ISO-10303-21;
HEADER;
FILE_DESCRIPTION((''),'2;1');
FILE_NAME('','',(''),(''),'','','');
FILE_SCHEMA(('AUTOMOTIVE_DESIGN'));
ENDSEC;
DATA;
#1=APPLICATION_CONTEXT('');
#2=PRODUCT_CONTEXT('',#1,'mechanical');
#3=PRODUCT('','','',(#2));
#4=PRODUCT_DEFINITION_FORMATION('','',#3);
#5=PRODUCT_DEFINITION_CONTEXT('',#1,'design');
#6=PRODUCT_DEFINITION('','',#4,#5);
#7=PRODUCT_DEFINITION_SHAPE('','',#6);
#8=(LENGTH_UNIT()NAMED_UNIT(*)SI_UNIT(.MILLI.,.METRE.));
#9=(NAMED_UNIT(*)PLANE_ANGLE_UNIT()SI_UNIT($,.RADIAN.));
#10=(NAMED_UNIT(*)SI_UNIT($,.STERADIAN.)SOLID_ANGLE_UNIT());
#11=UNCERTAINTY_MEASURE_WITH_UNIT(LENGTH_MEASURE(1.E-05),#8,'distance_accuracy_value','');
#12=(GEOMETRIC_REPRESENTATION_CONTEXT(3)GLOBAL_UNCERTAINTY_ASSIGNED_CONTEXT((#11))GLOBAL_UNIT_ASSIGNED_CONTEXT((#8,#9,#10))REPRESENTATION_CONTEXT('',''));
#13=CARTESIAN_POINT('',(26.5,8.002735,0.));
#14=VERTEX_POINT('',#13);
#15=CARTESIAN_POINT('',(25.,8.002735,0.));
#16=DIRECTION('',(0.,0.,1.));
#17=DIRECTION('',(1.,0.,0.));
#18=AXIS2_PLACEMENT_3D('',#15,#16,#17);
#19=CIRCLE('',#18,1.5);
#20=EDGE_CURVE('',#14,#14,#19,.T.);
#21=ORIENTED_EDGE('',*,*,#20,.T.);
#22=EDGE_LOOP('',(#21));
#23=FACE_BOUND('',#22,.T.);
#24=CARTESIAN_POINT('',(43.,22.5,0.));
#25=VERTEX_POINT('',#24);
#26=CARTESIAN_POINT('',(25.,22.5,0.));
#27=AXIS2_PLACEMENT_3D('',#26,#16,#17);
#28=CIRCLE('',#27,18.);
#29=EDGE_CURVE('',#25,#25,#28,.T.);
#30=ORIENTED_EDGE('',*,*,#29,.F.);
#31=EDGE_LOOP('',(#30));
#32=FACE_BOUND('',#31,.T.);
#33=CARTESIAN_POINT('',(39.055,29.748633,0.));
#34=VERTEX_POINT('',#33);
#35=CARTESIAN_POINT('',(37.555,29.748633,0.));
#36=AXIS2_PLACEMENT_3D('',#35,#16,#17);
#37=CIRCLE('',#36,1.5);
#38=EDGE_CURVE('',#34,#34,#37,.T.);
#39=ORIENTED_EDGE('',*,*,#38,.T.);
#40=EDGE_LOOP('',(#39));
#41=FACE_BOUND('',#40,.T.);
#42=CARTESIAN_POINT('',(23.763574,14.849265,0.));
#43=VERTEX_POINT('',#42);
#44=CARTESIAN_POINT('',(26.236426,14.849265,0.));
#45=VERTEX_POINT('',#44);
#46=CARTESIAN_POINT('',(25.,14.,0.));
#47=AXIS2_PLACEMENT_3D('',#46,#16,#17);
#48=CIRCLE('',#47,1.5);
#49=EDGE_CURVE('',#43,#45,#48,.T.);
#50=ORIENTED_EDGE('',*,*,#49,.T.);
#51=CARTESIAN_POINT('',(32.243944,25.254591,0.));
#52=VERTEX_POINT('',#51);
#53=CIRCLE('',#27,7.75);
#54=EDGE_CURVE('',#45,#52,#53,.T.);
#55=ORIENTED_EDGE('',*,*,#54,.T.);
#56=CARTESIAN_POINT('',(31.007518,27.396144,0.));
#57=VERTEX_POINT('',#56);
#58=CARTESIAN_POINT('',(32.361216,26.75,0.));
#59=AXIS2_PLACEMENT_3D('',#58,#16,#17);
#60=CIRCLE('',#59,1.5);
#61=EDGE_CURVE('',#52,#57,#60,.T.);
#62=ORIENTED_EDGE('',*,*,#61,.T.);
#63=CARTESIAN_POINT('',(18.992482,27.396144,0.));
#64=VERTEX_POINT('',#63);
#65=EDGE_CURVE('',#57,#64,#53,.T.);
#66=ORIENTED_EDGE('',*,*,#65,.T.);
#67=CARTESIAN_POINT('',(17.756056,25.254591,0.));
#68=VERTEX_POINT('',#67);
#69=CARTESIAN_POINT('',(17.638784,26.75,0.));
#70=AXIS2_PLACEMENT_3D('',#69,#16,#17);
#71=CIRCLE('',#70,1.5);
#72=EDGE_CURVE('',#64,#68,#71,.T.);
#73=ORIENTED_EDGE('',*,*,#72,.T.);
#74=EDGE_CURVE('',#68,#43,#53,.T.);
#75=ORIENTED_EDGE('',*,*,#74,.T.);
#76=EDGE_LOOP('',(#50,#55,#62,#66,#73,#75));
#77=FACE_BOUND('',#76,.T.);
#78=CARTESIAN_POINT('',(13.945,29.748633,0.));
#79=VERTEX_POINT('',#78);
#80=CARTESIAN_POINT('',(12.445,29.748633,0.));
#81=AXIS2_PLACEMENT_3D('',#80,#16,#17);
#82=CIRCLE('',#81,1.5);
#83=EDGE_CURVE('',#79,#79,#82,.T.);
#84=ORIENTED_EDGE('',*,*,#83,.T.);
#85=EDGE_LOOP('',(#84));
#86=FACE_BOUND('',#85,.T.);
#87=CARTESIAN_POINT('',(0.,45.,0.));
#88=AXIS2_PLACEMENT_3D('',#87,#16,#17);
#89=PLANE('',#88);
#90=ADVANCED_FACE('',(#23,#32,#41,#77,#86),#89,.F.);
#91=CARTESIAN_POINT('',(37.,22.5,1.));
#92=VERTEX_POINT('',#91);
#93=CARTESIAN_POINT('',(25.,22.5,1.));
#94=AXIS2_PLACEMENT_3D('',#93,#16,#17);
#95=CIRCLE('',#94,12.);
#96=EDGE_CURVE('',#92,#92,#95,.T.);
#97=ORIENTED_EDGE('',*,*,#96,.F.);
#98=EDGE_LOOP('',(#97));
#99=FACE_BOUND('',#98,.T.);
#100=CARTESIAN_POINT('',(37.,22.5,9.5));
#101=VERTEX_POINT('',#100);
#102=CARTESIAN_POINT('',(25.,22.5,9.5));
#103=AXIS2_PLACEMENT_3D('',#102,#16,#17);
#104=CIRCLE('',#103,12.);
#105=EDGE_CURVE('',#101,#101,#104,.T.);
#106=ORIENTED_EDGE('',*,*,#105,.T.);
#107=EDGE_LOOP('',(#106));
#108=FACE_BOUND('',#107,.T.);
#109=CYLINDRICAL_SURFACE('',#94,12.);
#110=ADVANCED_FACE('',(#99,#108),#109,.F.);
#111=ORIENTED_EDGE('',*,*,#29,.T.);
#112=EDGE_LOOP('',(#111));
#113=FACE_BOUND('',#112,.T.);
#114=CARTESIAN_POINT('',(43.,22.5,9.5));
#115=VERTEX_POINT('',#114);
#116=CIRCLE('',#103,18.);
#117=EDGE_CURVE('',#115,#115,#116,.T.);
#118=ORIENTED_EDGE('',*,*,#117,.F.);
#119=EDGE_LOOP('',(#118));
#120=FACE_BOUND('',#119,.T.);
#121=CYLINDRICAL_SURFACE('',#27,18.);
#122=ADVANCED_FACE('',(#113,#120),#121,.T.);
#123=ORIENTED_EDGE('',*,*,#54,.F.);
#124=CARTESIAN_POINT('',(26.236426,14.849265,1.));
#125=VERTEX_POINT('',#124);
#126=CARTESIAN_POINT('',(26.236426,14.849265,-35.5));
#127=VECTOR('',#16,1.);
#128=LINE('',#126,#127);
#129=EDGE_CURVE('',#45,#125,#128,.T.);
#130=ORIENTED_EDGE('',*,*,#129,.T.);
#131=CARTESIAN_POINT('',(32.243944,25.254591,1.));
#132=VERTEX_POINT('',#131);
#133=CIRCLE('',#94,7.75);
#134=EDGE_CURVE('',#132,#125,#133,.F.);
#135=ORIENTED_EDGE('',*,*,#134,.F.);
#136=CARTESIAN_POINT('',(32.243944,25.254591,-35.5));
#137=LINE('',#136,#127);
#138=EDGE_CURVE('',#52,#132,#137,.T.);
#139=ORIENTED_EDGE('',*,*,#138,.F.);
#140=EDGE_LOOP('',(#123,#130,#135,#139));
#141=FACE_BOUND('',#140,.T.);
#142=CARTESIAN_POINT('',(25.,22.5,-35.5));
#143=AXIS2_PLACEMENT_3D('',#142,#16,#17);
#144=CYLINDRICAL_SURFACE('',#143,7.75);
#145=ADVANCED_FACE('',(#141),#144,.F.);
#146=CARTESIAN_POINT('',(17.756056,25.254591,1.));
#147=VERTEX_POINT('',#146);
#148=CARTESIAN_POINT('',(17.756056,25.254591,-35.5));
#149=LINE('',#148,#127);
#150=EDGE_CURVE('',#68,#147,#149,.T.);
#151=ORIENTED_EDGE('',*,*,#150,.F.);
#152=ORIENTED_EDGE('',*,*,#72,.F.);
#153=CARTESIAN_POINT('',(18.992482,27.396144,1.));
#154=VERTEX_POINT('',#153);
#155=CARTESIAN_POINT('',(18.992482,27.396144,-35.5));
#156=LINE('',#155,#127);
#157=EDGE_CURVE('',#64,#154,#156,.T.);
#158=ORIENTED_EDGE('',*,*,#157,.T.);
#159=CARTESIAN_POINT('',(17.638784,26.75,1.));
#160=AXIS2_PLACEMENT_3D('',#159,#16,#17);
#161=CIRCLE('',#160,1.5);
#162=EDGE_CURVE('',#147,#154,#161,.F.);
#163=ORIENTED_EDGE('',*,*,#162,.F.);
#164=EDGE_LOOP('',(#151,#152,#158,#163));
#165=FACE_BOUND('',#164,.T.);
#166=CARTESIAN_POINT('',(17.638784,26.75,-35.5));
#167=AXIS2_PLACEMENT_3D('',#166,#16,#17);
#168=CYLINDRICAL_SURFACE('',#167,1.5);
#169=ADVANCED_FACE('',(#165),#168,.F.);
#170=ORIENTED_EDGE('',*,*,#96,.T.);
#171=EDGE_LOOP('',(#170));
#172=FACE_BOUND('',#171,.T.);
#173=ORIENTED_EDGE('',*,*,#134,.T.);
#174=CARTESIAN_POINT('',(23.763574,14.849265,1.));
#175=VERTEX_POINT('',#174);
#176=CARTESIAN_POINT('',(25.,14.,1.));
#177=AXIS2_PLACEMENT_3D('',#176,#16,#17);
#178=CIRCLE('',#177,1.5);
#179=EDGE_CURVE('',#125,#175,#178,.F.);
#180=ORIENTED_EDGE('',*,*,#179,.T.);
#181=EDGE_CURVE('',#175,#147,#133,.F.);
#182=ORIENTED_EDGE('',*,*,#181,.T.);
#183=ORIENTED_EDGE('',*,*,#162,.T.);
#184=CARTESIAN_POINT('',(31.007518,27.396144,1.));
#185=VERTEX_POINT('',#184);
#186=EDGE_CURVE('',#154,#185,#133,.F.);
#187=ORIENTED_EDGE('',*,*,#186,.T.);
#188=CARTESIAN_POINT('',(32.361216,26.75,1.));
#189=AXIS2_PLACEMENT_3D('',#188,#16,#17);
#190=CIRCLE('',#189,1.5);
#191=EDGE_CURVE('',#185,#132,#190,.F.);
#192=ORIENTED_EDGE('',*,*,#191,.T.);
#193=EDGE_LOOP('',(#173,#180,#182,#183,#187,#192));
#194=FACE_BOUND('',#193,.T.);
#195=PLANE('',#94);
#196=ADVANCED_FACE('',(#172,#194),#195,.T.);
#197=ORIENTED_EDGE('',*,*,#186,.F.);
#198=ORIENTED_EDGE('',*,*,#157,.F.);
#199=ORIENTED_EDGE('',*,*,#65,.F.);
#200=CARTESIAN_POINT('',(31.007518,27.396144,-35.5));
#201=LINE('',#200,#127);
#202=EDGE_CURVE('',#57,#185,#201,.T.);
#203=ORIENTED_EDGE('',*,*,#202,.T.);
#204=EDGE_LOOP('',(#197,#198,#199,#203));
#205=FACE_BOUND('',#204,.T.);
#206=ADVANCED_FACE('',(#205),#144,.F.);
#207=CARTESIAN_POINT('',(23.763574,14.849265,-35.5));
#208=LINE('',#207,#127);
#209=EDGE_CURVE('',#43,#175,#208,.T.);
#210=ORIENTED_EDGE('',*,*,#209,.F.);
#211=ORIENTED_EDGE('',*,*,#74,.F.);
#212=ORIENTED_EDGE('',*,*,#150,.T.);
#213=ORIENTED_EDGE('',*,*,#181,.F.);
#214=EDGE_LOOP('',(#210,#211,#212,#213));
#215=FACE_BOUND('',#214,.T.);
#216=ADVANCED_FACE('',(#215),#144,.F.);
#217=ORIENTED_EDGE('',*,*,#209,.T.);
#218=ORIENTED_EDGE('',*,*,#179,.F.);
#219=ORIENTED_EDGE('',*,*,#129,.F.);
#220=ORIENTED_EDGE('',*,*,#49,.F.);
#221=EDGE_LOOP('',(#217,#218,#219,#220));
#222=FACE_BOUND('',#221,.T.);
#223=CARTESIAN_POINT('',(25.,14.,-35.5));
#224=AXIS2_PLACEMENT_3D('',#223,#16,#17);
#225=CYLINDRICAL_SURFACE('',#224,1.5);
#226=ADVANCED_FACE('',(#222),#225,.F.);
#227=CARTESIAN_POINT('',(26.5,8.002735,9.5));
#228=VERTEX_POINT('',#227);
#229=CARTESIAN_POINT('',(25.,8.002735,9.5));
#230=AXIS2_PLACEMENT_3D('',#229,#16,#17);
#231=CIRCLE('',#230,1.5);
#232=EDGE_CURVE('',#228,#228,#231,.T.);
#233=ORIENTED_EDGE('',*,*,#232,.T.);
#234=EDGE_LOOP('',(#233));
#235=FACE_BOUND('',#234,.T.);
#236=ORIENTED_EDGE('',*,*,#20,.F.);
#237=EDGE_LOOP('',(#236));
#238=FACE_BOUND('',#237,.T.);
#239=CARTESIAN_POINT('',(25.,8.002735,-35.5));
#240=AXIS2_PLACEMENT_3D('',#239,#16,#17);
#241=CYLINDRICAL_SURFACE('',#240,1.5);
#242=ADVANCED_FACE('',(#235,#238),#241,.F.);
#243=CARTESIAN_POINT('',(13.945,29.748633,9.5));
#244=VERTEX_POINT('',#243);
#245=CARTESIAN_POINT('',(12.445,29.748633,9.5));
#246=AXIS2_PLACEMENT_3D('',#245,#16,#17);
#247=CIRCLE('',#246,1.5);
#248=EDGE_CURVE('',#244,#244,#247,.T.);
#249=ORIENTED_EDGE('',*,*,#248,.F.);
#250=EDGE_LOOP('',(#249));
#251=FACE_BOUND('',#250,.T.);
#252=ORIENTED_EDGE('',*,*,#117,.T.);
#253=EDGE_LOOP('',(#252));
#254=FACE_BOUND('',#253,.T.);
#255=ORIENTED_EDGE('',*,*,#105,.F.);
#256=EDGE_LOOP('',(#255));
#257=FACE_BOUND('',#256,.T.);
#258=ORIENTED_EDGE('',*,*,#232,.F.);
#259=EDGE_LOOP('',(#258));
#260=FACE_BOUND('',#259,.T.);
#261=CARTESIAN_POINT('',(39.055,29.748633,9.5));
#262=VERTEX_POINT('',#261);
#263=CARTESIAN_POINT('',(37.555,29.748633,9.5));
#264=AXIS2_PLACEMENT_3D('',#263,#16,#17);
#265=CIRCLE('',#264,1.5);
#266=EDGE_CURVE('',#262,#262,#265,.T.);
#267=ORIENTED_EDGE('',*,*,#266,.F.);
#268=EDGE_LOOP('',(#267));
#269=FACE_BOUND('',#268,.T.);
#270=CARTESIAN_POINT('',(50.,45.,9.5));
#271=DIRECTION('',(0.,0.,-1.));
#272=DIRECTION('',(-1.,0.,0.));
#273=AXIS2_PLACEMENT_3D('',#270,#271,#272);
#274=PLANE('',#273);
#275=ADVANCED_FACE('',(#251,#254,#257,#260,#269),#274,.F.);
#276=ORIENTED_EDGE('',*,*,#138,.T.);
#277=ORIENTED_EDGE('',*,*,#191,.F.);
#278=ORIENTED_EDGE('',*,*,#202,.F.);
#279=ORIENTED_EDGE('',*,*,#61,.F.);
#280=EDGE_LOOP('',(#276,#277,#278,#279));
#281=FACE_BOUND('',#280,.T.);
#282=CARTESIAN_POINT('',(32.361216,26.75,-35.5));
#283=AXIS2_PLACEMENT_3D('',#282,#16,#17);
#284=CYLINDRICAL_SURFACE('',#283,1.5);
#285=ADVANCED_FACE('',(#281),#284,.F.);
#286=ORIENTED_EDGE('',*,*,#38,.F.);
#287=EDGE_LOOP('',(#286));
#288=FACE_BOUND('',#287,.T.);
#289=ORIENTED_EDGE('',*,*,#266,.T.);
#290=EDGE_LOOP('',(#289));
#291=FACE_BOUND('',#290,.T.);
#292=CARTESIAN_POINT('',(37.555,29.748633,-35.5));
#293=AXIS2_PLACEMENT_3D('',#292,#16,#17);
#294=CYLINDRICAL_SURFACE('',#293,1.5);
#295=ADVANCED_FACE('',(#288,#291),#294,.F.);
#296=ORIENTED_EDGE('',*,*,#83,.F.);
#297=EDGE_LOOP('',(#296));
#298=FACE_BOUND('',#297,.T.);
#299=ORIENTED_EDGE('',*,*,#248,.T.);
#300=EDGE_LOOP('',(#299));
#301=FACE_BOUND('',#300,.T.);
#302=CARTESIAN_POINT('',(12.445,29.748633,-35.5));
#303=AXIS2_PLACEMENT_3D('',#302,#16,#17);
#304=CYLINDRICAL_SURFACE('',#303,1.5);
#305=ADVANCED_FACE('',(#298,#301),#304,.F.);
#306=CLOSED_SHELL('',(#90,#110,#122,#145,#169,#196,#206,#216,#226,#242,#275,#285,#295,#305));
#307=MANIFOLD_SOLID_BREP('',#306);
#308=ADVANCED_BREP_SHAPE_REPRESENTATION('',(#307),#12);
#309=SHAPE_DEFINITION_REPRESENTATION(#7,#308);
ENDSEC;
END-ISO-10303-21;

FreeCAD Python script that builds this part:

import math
import FreeCAD as App
import Part
import Sketcher
Q = App.Units.Quantity


def add_polygon(sketch, points):
    """Adds a closed chain of lines whose ends are joined by coincident constraints."""
    first, n = sketch.GeometryCount, len(points)
    for a, b in zip(points, points[1:] + points[:1]):
        sketch.addGeometry(Part.LineSegment(App.Vector(*a, 0), App.Vector(*b, 0)), False)
    for i in range(n):
        sketch.addConstraint(Sketcher.Constraint("Coincident", first + i, 2, first + (i + 1) % n, 1))

doc = App.newDocument("Part")
params = doc.addObject("Spreadsheet::Sheet", "Params")
for row, (alias, value) in enumerate([
    ("sketch1_width", "50 mm"),
    ("sketch1_height", "9.5 mm"),
    ("pad1_length", "45 mm"),
    ("sketch2_diameter", "3 mm"),
    ("sketch2_radius", "7.75 mm"),
    ("pocket1_length", "45 mm"),
    ("sketch3_diameter", "24 mm"),
    ("pocket2_length", "8.5 mm"),
    ("sketch4_diameter", "36 mm"),
], start=1):
    params.set(f"A{row}", alias)
    params.set(f"B{row}", "=" + value)
    params.setAlias(f"B{row}", alias)

body = doc.addObject("PartDesign::Body", "Body")

# Sketch on XZ plane
sketch1 = body.newObject("Sketcher::SketchObject", "Sketch")
sketch1.AttachmentSupport = (doc.getObject("XZ_Plane"), [""])
sketch1.MapMode = "FlatFace"
add_polygon(sketch1, [(0, 0), (0, 9.5), (50, 9.5), (50, 0)])  # lines 0-3
sketch1.addConstraint([
    Sketcher.Constraint("Vertical", 0),
    Sketcher.Constraint("Horizontal", 1),
    Sketcher.Constraint("Vertical", 2),
    Sketcher.Constraint("Horizontal", 3),
    Sketcher.Constraint("Coincident", 3, 2, -1, 1),
    Sketcher.Constraint("DistanceX", 1, 1, 1, 2, Q("50 mm")),
    Sketcher.Constraint("DistanceY", 0, 1, 0, 2, Q("9.5 mm")),
])
sketch1.setExpression("Constraints[9]", "Params.sketch1_width")
sketch1.setExpression("Constraints[10]", "Params.sketch1_height")
pad1 = body.newObject("PartDesign::Pad", "Pad")
pad1.Profile = sketch1
pad1.setExpression("Length", "Params.pad1_length")
pad1.Reversed = True

# Sketch on XY plane
sketch2 = body.newObject("Sketcher::SketchObject", "Sketch001")
sketch2.AttachmentSupport = (doc.getObject("XY_Plane"), [""])
sketch2.MapMode = "FlatFace"
sketch2.AttachmentOffset = App.Placement(App.Vector(0, 0, 9.5), App.Rotation())
sketch2.addGeometry([
    Part.Circle(App.Vector(12.445, 29.748633, 0), App.Vector(0, 0, 1), 1.5),  # 0
    Part.Circle(App.Vector(37.555, 29.748633, 0), App.Vector(0, 0, 1), 1.5),  # 1
    Part.Circle(App.Vector(25, 8.002735, 0), App.Vector(0, 0, 1), 1.5),  # 2
    Part.ArcOfCircle(Part.Circle(App.Vector(17.638784, 26.75, 0), App.Vector(0, 0, 1), 1.5), math.radians(25.515973), math.radians(274.484027)),  # 3
    Part.ArcOfCircle(Part.Circle(App.Vector(25, 22.5, 0), App.Vector(0, 0, 1), 7.75), math.radians(159.18013), math.radians(260.81987)),  # 4
    Part.ArcOfCircle(Part.Circle(App.Vector(25, 14, 0), App.Vector(0, 0, 1), 1.5), math.radians(145.515973), math.radians(394.484027)),  # 5
    Part.ArcOfCircle(Part.Circle(App.Vector(25, 22.5, 0), App.Vector(0, 0, 1), 7.75), math.radians(-80.81987), math.radians(20.81987)),  # 6
    Part.ArcOfCircle(Part.Circle(App.Vector(32.361216, 26.75, 0), App.Vector(0, 0, 1), 1.5), math.radians(-94.484027), math.radians(154.484027)),  # 7
    Part.ArcOfCircle(Part.Circle(App.Vector(25, 22.5, 0), App.Vector(0, 0, 1), 7.75), math.radians(39.18013), math.radians(140.81987)),  # 8
], False)
sketch2.addConstraint([
    Sketcher.Constraint("Coincident", 3, 2, 4, 1),
    Sketcher.Constraint("Coincident", 4, 2, 5, 1),
    Sketcher.Constraint("Coincident", 5, 2, 6, 1),
    Sketcher.Constraint("Coincident", 6, 2, 7, 1),
    Sketcher.Constraint("Coincident", 7, 2, 8, 1),
    Sketcher.Constraint("Coincident", 8, 2, 3, 1),
    Sketcher.Constraint("Coincident", 6, 3, 4, 3),
    Sketcher.Constraint("Coincident", 8, 3, 4, 3),
    Sketcher.Constraint("Equal", 0, 1),
    Sketcher.Constraint("Equal", 1, 2),
    Sketcher.Constraint("Equal", 2, 3),
    Sketcher.Constraint("Equal", 3, 5),
    Sketcher.Constraint("Equal", 4, 6),
    Sketcher.Constraint("Equal", 5, 7),
    Sketcher.Constraint("Equal", 6, 8),
    Sketcher.Constraint("Horizontal", 0, 3, 1, 3),
    Sketcher.Constraint("Horizontal", 3, 3, 7, 3),
    Sketcher.Constraint("Horizontal", 4, 2, 5, 2),
    Sketcher.Constraint("Horizontal", 3, 2, 6, 2),
    Sketcher.Constraint("Vertical", 2, 3, 4, 3),
    Sketcher.Constraint("Diameter", 0, Q("3 mm")),
    Sketcher.Constraint("Radius", 4, Q("7.75 mm")),
    Sketcher.Constraint("DistanceX", -1, 1, 2, 3, Q("25 mm")),
    Sketcher.Constraint("DistanceY", -1, 1, 5, 3, Q("14 mm")),
    Sketcher.Constraint("DistanceY", -1, 1, 4, 3, Q("22.5 mm")),
    Sketcher.Constraint("DistanceY", -1, 1, 3, 3, Q("26.75 mm")),
    Sketcher.Constraint("DistanceX", 0, 3, 1, 3, Q("25.11 mm")),
    Sketcher.Constraint("DistanceX", -1, 1, 0, 3, Q("12.445 mm")),
    Sketcher.Constraint("DistanceY", -1, 1, 3, 2, Q("25.254591 mm")),
    Sketcher.Constraint("DistanceY", 3, 2, 0, 3, Q("4.494041 mm")),
    Sketcher.Constraint("DistanceY", 2, 3, 4, 2, Q("6.84653 mm")),
])
sketch2.setExpression("Constraints[20]", "Params.sketch2_diameter")
sketch2.setExpression("Constraints[21]", "Params.sketch2_radius")
pocket1 = body.newObject("PartDesign::Pocket", "Pocket")
pocket1.Profile = sketch2
pocket1.setExpression("Length", "Params.pocket1_length")

# Sketch on XY plane
sketch3 = body.newObject("Sketcher::SketchObject", "Sketch002")
sketch3.AttachmentSupport = (doc.getObject("XY_Plane"), [""])
sketch3.MapMode = "FlatFace"
sketch3.AttachmentOffset = App.Placement(App.Vector(0, 0, 9.5), App.Rotation())
sketch3.addGeometry(Part.Circle(App.Vector(25, 22.5, 0), App.Vector(0, 0, 1), 12), False)
sketch3.addConstraint([
    Sketcher.Constraint("Diameter", 0, Q("24 mm")),
    Sketcher.Constraint("DistanceX", -1, 1, 0, 3, Q("25 mm")),
    Sketcher.Constraint("DistanceY", -1, 1, 0, 3, Q("22.5 mm")),
])
sketch3.setExpression("Constraints[0]", "Params.sketch3_diameter")
pocket2 = body.newObject("PartDesign::Pocket", "Pocket001")
pocket2.Profile = sketch3
pocket2.setExpression("Length", "Params.pocket2_length")

# Sketch on XY plane
sketch4 = body.newObject("Sketcher::SketchObject", "Sketch003")
sketch4.AttachmentSupport = (doc.getObject("XY_Plane"), [""])
sketch4.MapMode = "FlatFace"
sketch4.AttachmentOffset = App.Placement(App.Vector(0, 0, 9.5), App.Rotation())
sketch4.addGeometry([
    Part.Circle(App.Vector(25, 22.5, 0), App.Vector(0, 0, 1), 36.120284),
    Part.Circle(App.Vector(25, 22.5, 0), App.Vector(0, 0, 1), 18),
], False)
sketch4.addConstraint([
    Sketcher.Constraint("Coincident", 1, 3, 0, 3),
    Sketcher.Constraint("Diameter", 1, Q("36 mm")),
    Sketcher.Constraint("DistanceX", -1, 1, 0, 3, Q("25 mm")),
    Sketcher.Constraint("DistanceY", -1, 1, 0, 3, Q("22.5 mm")),
    Sketcher.Constraint("Diameter", 0, Q("72.240567 mm")),
])
sketch4.setExpression("Constraints[1]", "Params.sketch4_diameter")
pocket3 = body.newObject("PartDesign::Pocket", "Pocket002")
pocket3.Profile = sketch4
pocket3.Type = "ThroughAll"

doc.recompute()
